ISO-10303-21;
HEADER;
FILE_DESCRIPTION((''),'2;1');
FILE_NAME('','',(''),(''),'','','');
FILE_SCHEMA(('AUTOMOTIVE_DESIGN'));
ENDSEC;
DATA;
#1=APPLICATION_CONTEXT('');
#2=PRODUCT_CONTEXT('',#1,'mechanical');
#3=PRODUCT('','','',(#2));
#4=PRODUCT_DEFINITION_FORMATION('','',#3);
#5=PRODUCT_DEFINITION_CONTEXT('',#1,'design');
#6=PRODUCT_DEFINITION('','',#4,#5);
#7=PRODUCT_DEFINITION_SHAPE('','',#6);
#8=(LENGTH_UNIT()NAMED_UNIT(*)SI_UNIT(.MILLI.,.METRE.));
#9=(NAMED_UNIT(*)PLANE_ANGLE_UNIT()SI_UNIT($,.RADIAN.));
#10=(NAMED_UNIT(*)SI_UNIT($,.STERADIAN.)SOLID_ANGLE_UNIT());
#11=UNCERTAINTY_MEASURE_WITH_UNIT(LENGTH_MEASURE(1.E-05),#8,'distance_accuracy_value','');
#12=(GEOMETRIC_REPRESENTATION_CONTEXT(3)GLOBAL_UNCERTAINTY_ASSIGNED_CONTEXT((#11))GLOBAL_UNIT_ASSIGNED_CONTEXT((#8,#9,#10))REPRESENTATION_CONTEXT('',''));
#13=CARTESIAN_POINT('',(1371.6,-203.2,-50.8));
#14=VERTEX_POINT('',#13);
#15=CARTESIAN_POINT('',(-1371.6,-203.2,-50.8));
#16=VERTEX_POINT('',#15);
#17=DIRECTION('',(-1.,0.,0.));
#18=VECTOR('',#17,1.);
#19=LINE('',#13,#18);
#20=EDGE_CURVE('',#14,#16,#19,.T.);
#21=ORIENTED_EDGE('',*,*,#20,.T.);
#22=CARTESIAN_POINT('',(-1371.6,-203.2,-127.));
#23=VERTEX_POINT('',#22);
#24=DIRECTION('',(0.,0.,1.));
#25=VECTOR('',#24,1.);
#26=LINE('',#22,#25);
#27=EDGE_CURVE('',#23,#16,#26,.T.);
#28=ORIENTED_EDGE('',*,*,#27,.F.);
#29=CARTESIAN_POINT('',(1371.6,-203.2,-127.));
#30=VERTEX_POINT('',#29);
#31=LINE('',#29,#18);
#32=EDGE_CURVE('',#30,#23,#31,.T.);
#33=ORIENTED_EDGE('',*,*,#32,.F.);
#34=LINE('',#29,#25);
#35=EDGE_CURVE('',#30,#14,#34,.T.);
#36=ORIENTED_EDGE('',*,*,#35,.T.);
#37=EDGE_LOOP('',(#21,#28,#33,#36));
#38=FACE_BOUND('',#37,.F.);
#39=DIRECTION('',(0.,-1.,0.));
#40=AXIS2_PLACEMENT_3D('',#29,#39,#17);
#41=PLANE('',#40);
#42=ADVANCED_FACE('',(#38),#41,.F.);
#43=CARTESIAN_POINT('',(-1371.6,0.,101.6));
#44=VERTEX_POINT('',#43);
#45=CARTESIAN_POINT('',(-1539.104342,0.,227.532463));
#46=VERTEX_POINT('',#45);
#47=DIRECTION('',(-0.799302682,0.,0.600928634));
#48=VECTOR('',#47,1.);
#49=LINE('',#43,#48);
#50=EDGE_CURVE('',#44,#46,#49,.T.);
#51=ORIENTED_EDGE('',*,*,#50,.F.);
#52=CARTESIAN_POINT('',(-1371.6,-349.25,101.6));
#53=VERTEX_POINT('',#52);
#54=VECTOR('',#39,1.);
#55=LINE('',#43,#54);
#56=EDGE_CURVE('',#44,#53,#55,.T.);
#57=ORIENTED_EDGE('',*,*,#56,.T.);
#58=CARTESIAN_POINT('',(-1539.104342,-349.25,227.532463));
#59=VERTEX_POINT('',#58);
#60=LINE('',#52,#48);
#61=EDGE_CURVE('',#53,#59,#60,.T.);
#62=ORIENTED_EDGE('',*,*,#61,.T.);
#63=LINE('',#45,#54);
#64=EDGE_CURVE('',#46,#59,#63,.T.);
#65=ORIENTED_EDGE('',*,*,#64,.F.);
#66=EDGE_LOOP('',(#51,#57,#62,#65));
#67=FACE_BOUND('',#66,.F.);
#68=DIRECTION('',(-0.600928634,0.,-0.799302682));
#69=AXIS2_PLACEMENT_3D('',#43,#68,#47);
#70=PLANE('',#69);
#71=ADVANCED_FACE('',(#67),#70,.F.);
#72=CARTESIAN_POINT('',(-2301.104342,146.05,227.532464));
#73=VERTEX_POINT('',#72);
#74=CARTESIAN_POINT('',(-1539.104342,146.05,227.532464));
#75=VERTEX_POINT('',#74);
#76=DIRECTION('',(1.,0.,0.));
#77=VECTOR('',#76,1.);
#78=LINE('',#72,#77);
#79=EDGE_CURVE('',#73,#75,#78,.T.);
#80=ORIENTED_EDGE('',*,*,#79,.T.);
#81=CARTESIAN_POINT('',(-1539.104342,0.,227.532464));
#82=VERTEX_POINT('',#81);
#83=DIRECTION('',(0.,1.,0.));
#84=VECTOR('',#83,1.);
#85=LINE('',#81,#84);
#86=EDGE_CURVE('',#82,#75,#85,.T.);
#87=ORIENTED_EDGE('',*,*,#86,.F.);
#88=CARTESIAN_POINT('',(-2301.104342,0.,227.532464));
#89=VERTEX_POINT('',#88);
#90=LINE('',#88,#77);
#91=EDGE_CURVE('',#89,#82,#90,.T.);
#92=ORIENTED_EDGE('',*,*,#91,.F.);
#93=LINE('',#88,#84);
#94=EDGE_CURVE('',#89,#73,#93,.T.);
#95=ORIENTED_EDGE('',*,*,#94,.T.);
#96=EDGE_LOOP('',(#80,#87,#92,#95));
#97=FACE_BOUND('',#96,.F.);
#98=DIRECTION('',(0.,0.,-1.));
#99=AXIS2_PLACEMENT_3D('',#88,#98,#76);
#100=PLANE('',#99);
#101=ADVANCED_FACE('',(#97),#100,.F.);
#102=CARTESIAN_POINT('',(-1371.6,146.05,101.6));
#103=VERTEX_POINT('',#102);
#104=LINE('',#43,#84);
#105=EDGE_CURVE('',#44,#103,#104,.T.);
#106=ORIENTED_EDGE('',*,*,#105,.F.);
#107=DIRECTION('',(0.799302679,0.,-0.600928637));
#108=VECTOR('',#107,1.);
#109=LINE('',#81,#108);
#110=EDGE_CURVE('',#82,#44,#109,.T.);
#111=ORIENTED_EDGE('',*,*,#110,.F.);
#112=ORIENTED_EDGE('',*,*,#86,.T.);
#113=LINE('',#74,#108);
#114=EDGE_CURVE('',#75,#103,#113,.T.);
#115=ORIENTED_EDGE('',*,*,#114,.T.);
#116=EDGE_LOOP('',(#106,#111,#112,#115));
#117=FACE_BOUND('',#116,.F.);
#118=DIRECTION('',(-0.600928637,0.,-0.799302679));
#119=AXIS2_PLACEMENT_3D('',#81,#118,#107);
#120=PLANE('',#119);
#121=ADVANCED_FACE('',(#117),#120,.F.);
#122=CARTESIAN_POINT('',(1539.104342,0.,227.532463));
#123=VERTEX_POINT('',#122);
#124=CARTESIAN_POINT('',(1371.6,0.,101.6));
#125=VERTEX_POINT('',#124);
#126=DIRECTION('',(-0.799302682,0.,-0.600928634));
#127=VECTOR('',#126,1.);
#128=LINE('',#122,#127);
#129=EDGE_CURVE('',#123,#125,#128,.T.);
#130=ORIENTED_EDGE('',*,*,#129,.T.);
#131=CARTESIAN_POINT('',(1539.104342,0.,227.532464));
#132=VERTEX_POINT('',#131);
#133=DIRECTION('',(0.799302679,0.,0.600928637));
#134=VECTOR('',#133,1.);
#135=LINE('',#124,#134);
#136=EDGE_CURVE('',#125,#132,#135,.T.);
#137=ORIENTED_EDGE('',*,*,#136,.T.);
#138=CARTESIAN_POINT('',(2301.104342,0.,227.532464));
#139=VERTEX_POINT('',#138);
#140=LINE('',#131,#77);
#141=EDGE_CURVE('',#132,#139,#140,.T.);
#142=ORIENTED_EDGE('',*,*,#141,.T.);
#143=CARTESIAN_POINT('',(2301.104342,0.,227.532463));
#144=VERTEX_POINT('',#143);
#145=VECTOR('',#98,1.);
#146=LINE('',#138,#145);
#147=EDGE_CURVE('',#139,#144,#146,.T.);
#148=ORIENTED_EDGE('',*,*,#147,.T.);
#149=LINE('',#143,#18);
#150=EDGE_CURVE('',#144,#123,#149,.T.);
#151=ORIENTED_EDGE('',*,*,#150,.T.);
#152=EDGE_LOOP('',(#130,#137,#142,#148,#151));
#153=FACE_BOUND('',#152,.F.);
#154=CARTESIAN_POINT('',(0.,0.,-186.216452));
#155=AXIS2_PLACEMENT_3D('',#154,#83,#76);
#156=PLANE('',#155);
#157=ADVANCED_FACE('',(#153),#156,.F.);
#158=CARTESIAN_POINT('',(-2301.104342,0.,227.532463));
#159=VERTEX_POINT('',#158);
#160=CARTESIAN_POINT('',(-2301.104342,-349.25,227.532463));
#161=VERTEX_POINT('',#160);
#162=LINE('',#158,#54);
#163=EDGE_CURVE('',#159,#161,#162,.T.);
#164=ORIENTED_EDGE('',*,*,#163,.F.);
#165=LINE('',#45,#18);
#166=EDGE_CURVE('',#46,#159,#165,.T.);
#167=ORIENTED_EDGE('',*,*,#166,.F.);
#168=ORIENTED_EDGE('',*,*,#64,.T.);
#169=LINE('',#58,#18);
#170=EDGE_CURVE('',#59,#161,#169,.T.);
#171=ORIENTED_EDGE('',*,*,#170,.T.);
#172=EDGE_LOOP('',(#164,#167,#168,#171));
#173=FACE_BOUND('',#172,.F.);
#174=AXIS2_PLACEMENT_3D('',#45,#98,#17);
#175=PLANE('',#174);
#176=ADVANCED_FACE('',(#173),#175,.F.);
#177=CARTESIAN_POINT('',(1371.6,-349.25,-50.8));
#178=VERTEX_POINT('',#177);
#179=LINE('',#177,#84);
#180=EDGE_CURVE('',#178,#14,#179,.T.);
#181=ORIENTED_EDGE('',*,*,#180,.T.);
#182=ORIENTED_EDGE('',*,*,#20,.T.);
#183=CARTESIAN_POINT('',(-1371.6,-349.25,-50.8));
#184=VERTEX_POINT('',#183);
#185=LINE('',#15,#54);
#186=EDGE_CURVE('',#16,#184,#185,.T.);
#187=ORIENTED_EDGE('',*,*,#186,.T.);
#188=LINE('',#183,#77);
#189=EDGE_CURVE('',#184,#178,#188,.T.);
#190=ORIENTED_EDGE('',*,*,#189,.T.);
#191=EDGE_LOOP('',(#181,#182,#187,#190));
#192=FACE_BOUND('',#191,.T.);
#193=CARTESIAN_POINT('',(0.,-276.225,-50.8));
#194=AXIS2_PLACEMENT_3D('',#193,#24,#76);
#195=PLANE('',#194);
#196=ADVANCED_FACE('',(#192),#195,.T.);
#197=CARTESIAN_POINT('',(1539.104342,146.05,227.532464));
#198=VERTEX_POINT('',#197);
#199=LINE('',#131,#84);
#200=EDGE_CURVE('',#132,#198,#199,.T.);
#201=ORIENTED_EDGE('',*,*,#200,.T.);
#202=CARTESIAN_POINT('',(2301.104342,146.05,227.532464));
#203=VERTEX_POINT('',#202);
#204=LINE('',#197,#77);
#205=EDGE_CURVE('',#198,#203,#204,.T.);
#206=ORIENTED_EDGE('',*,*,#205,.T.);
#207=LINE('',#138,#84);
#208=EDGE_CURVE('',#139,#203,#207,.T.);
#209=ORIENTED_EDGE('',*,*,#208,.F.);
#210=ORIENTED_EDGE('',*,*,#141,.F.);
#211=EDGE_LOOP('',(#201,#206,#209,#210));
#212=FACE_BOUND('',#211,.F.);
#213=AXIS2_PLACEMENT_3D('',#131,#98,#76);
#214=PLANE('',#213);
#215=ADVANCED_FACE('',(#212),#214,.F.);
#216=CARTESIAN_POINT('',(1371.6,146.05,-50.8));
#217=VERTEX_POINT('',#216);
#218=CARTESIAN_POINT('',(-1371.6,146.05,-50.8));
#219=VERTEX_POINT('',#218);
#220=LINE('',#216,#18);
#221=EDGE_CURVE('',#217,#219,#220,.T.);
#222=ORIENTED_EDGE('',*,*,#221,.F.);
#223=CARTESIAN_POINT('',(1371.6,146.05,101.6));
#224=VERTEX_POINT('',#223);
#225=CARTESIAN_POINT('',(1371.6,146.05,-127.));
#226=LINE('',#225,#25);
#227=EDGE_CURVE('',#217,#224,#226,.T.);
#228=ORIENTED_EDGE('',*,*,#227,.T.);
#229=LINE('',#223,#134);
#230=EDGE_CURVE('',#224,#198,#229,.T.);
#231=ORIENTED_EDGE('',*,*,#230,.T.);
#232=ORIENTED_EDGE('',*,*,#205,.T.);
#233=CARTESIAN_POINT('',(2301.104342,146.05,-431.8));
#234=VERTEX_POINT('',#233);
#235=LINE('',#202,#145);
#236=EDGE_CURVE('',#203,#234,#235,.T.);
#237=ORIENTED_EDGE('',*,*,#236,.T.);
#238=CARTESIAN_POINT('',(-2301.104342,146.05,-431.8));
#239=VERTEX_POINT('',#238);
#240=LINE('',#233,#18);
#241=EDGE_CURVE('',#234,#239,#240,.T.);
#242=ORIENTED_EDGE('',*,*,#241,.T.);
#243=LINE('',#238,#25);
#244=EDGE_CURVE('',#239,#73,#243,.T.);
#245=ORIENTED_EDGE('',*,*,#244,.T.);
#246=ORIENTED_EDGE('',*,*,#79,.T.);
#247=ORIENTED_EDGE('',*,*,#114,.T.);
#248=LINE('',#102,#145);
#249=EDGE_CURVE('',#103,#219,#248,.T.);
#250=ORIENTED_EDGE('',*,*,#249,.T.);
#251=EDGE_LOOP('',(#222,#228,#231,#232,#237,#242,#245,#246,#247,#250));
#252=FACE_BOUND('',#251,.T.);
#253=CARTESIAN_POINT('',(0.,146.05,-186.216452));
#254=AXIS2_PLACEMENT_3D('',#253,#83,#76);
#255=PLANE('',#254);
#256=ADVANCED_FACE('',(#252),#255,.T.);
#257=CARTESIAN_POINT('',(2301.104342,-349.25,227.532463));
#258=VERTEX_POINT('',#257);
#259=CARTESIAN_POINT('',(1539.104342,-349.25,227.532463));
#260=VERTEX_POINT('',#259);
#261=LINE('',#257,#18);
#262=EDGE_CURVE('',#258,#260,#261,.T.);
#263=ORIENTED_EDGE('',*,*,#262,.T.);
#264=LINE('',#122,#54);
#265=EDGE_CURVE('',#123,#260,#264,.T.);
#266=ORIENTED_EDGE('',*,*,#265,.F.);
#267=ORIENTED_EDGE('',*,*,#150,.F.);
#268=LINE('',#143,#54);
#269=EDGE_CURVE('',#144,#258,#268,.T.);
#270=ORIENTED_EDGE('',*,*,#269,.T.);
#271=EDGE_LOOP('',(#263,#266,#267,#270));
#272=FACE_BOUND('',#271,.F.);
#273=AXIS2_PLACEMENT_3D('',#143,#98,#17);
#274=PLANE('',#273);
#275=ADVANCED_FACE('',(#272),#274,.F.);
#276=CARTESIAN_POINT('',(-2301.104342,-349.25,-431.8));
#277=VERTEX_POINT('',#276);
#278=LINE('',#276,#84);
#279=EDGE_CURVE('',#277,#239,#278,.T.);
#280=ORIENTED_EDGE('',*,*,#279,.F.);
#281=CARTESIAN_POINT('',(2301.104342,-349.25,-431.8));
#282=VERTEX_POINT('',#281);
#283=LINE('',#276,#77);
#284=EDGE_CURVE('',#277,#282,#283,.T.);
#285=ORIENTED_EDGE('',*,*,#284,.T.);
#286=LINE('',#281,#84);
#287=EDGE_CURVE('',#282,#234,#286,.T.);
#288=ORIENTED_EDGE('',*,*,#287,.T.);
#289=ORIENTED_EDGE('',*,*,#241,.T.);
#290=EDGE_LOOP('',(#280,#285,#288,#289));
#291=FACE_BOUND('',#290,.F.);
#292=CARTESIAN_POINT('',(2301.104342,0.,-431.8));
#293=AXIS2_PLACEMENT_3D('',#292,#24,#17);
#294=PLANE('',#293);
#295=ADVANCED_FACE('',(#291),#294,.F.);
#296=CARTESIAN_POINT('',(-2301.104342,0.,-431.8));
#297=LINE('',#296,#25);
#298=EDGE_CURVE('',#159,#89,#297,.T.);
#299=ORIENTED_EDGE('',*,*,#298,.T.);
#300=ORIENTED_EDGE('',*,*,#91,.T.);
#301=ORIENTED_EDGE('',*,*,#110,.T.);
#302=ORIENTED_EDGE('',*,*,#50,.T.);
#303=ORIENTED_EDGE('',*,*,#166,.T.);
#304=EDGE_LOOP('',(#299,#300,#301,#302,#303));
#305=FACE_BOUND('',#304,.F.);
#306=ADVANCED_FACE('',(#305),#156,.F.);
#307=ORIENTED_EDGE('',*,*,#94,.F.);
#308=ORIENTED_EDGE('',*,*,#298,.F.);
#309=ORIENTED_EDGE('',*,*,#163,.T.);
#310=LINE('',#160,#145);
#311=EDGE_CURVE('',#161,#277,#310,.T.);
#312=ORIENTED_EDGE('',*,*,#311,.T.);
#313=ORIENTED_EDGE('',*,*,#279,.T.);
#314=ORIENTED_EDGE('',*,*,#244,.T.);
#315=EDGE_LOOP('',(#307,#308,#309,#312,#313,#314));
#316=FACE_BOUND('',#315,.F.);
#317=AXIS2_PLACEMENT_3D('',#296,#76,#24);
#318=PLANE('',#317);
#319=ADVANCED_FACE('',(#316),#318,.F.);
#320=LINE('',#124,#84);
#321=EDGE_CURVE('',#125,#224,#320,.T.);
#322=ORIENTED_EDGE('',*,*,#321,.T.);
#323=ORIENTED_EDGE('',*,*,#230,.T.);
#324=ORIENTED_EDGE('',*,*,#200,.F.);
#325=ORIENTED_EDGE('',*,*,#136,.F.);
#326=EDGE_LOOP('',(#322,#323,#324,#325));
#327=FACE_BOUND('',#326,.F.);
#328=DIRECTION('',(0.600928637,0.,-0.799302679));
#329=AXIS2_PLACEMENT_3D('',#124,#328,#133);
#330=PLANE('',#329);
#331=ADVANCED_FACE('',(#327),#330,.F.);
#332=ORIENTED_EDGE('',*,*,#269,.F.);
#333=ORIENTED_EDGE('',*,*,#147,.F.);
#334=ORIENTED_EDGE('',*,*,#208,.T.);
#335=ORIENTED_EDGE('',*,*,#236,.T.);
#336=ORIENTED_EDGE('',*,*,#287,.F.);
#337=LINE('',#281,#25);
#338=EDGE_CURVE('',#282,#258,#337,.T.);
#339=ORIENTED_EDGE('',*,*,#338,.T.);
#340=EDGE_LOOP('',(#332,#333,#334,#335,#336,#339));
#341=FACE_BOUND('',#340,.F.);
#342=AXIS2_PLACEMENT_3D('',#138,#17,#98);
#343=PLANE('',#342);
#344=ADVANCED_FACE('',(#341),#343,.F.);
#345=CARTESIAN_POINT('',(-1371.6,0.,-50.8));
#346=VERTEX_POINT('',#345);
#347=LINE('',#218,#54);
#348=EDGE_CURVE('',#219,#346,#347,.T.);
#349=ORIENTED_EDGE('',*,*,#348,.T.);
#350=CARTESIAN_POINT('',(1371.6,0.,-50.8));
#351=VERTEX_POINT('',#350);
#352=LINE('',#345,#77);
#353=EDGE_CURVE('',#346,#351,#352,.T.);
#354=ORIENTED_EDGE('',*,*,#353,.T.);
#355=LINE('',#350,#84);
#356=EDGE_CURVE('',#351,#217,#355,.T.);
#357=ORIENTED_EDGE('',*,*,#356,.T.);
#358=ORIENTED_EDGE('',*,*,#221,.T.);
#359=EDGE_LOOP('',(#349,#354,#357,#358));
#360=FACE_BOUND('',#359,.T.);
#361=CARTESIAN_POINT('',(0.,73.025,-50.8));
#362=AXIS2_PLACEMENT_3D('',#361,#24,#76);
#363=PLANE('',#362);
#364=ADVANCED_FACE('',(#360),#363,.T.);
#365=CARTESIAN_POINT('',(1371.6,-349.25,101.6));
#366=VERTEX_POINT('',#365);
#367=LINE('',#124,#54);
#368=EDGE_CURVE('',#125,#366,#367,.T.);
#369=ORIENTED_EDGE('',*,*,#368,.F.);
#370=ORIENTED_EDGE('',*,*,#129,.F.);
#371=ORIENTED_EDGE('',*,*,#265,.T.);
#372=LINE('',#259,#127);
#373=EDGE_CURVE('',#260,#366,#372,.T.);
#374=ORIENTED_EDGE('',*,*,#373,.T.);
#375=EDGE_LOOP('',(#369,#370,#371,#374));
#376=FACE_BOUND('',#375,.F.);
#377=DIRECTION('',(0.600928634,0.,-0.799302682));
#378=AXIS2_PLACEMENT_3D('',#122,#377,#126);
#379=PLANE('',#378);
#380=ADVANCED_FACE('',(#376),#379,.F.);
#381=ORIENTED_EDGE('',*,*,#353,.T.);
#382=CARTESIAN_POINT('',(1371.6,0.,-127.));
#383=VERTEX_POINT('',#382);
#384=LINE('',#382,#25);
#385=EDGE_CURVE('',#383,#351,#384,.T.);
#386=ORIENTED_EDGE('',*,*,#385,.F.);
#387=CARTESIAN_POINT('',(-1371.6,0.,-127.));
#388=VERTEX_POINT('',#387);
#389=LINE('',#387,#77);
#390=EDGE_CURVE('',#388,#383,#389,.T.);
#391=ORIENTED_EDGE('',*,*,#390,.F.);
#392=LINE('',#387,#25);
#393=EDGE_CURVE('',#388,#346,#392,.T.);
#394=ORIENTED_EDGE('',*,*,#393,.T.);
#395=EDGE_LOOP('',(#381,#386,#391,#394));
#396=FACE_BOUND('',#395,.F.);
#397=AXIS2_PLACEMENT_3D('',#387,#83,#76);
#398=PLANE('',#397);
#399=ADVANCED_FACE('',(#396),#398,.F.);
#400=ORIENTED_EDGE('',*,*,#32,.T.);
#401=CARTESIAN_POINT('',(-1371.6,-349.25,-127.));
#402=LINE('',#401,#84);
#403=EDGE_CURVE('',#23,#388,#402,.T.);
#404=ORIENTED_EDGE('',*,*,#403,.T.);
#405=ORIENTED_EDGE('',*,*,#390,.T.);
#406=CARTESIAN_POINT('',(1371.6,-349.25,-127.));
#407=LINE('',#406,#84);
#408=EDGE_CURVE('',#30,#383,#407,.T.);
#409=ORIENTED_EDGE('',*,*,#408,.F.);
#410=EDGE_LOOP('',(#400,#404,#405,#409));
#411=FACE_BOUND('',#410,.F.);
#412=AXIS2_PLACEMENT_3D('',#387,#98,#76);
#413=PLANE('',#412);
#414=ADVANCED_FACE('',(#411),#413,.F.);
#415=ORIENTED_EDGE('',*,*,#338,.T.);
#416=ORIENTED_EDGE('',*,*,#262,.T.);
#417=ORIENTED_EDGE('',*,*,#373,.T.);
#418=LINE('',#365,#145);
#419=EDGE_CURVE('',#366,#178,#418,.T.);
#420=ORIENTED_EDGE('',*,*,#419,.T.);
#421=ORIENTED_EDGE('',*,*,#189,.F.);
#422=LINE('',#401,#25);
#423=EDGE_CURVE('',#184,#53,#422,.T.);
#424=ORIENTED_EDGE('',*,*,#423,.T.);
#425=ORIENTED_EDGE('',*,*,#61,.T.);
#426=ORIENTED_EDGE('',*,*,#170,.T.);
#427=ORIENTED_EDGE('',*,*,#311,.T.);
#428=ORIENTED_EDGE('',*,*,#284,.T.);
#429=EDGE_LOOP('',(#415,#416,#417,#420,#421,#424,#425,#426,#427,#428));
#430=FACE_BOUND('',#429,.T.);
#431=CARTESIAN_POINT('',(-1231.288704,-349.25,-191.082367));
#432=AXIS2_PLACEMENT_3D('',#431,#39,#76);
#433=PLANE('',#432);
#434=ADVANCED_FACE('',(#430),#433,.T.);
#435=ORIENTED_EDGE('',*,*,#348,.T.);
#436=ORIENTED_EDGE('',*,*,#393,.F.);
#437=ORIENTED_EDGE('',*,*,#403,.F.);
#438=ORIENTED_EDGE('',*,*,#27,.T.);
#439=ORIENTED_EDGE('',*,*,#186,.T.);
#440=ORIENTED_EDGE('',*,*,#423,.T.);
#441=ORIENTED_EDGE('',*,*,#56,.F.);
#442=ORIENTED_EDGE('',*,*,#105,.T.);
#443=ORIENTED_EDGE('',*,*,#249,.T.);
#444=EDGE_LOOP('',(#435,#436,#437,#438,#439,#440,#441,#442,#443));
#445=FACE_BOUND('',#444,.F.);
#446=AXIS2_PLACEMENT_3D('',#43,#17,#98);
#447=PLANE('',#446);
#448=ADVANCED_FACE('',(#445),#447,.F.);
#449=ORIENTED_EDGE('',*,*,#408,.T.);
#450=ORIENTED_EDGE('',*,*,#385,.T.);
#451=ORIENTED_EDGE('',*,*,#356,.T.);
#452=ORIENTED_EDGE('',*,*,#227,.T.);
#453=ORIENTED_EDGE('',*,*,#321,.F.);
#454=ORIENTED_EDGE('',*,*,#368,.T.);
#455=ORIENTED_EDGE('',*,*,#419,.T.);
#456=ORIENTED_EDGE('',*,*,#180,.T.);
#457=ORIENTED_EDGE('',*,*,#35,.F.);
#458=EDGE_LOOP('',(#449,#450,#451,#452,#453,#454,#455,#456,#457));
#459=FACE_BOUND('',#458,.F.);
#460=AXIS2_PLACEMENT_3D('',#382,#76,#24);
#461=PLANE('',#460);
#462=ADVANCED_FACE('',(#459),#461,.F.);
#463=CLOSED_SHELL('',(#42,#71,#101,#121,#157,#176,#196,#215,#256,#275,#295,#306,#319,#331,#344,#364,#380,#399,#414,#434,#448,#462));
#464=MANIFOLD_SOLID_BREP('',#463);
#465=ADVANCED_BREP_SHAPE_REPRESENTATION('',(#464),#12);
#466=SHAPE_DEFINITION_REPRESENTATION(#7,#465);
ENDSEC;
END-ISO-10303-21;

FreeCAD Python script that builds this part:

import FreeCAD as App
import Part
import Sketcher

V = App.Vector
Q = App.Units.Quantity


def add_polygon(sketch, points):
    """Adds a closed chain of lines whose ends are joined by coincident constraints."""
    first, n = sketch.GeometryCount, len(points)
    for a, b in zip(points, points[1:] + points[:1]):
        sketch.addGeometry(Part.LineSegment(App.Vector(*a, 0), App.Vector(*b, 0)), False)
    for i in range(n):
        sketch.addConstraint(Sketcher.Constraint("Coincident", first + i, 2, first + (i + 1) % n, 1))

doc = App.newDocument("Part")
body = doc.addObject("PartDesign::Body", "Body")

# Sketch on XZ plane
sketch1 = body.newObject("Sketcher::SketchObject", "Sketch")
sketch1.AttachmentSupport = (doc.getObject("XZ_Plane"), [""])
sketch1.MapMode = "FlatFace"
add_polygon(sketch1, [(-1371.6, -127), (-1371.6, 101.6), (-1539.104342, 227.532463), (-2301.104342, 227.532463), (-2301.104342, -431.8), (2301.104342, -431.8), (2301.104342, 227.532463), (1539.104342, 227.532463), (1371.6, 101.6), (1371.6, -127)])  # lines 0-9
sketch1.addConstraint([
    Sketcher.Constraint("Vertical", 0),
    Sketcher.Constraint("Horizontal", 2),
    Sketcher.Constraint("Vertical", 3),
    Sketcher.Constraint("Horizontal", 4),
    Sketcher.Constraint("Vertical", 5),
    Sketcher.Constraint("Horizontal", 6),
    Sketcher.Constraint("Vertical", 8),
    Sketcher.Constraint("Horizontal", 9),
    Sketcher.Constraint("Symmetric", 2, 2, 5, 2, -2),
    Sketcher.Constraint("Symmetric", 0, 2, 7, 2, -2),
    Sketcher.Constraint("Equal", 2, 6),
    Sketcher.Constraint("DistanceX", 2, 2, 2, 1, Q("30 in")),
    Sketcher.Constraint("DistanceX", 9, 2, 9, 1, Q("108 in")),
    Sketcher.Constraint("DistanceY", 0, 1, 0, 2, Q("9 in")),
    Sketcher.Constraint("DistanceY", -1, 1, 0, 2, Q("4 in")),
    Sketcher.Constraint("DistanceY", 3, 2, -1, 1, Q("17 in")),
    Sketcher.Constraint("DistanceX", 4, 1, 4, 2, Q("4602.208684 mm")),
    Sketcher.Constraint("DistanceY", 3, 2, 3, 1, Q("659.332463 mm")),
])
pad1 = body.newObject("PartDesign::Pad", "Pad")
pad1.Profile = sketch1
pad1.Length = Q("13.75 in")

# Sketch on XZ plane
sketch2 = body.newObject("Sketcher::SketchObject", "Sketch001")
sketch2.AttachmentSupport = (doc.getObject("XZ_Plane"), [""])
sketch2.MapMode = "FlatFace"
add_polygon(sketch2, [(-1371.6, 101.6), (-1371.6, -127), (1371.6, -127), (1371.6, 101.6), (1539.104342, 227.532464), (2301.104342, 227.532464), (2301.104342, -431.8), (-2301.104342, -431.8), (-2301.104342, 227.532464), (-1539.104342, 227.532464)])  # lines 0-9
sketch2.addConstraint([
    Sketcher.Constraint("Vertical", 0),
    Sketcher.Constraint("Horizontal", 1),
    Sketcher.Constraint("Vertical", 2),
    Sketcher.Constraint("Horizontal", 4),
    Sketcher.Constraint("Vertical", 5),
    Sketcher.Constraint("Horizontal", 6),
    Sketcher.Constraint("Vertical", 7),
    Sketcher.Constraint("Horizontal", 8),
    Sketcher.Constraint("Symmetric", 4, 2, 7, 2, -2),
    Sketcher.Constraint("Symmetric", 2, 2, 9, 2, -2),
    Sketcher.Constraint("Equal", 4, 8),
    Sketcher.Constraint("DistanceX", 1, 1, 1, 2, Q("108 in")),
    Sketcher.Constraint("DistanceX", 4, 1, 4, 2, Q("30 in")),
    Sketcher.Constraint("DistanceY", 0, 2, 0, 1, Q("9 in")),
    Sketcher.Constraint("DistanceY", 0, 2, -1, 1, Q("5 in")),
    Sketcher.Constraint("DistanceY", 5, 2, -1, 1, Q("17 in")),
    Sketcher.Constraint("DistanceX", 6, 2, 6, 1, Q("4602.208684 mm")),
    Sketcher.Constraint("DistanceY", 5, 2, 5, 1, Q("659.332464 mm")),
])
pad2 = body.newObject("PartDesign::Pad", "Pad001")
pad2.Profile = sketch2
pad2.Length = Q("5.75 in")
pad2.Reversed = True

# Sketch on XY plane
sketch3 = body.newObject("Sketcher::SketchObject", "Sketch002")
sketch3.AttachmentSupport = (doc.getObject("XY_Plane"), [""])
sketch3.MapMode = "FlatFace"
sketch3.AttachmentOffset = App.Placement(V(0, 0, -5 * 25.4), App.Rotation())
add_polygon(sketch3, [(1371.6, -349.25), (1371.6, -203.2), (-1371.6, -203.2), (-1371.6, -349.25)])  # lines 0-3
add_polygon(sketch3, [(1371.6, 0), (1371.6, 146.05), (-1371.6, 146.05), (-1371.6, 0)])  # lines 4-7
sketch3.addConstraint([
    Sketcher.Constraint("Vertical", 0),
    Sketcher.Constraint("Horizontal", 1),
    Sketcher.Constraint("Vertical", 2),
    Sketcher.Constraint("Horizontal", 3),
    Sketcher.Constraint("Vertical", 4),
    Sketcher.Constraint("Horizontal", 5),
    Sketcher.Constraint("Vertical", 6),
    Sketcher.Constraint("Horizontal", 7),
    Sketcher.Constraint("Symmetric", 6, 2, 7, 2, -1, 1),
    Sketcher.Constraint("Vertical", 3, 2, 4, 2),
    Sketcher.Constraint("Vertical", 2, 2, 5, 2),
    Sketcher.Constraint("Equal", 2, 4),
    Sketcher.Constraint("DistanceX", 1, 2, 1, 1, Q("108 in")),
    Sketcher.Constraint("DistanceY", 0, 2, -1, 1, Q("8 in")),
    Sketcher.Constraint("DistanceY", 0, 1, 0, 2, Q("5.75 in")),
])
pad3 = body.newObject("PartDesign::Pad", "Pad002")
pad3.Profile = sketch3
pad3.Length = Q("3 in")

doc.recompute()
